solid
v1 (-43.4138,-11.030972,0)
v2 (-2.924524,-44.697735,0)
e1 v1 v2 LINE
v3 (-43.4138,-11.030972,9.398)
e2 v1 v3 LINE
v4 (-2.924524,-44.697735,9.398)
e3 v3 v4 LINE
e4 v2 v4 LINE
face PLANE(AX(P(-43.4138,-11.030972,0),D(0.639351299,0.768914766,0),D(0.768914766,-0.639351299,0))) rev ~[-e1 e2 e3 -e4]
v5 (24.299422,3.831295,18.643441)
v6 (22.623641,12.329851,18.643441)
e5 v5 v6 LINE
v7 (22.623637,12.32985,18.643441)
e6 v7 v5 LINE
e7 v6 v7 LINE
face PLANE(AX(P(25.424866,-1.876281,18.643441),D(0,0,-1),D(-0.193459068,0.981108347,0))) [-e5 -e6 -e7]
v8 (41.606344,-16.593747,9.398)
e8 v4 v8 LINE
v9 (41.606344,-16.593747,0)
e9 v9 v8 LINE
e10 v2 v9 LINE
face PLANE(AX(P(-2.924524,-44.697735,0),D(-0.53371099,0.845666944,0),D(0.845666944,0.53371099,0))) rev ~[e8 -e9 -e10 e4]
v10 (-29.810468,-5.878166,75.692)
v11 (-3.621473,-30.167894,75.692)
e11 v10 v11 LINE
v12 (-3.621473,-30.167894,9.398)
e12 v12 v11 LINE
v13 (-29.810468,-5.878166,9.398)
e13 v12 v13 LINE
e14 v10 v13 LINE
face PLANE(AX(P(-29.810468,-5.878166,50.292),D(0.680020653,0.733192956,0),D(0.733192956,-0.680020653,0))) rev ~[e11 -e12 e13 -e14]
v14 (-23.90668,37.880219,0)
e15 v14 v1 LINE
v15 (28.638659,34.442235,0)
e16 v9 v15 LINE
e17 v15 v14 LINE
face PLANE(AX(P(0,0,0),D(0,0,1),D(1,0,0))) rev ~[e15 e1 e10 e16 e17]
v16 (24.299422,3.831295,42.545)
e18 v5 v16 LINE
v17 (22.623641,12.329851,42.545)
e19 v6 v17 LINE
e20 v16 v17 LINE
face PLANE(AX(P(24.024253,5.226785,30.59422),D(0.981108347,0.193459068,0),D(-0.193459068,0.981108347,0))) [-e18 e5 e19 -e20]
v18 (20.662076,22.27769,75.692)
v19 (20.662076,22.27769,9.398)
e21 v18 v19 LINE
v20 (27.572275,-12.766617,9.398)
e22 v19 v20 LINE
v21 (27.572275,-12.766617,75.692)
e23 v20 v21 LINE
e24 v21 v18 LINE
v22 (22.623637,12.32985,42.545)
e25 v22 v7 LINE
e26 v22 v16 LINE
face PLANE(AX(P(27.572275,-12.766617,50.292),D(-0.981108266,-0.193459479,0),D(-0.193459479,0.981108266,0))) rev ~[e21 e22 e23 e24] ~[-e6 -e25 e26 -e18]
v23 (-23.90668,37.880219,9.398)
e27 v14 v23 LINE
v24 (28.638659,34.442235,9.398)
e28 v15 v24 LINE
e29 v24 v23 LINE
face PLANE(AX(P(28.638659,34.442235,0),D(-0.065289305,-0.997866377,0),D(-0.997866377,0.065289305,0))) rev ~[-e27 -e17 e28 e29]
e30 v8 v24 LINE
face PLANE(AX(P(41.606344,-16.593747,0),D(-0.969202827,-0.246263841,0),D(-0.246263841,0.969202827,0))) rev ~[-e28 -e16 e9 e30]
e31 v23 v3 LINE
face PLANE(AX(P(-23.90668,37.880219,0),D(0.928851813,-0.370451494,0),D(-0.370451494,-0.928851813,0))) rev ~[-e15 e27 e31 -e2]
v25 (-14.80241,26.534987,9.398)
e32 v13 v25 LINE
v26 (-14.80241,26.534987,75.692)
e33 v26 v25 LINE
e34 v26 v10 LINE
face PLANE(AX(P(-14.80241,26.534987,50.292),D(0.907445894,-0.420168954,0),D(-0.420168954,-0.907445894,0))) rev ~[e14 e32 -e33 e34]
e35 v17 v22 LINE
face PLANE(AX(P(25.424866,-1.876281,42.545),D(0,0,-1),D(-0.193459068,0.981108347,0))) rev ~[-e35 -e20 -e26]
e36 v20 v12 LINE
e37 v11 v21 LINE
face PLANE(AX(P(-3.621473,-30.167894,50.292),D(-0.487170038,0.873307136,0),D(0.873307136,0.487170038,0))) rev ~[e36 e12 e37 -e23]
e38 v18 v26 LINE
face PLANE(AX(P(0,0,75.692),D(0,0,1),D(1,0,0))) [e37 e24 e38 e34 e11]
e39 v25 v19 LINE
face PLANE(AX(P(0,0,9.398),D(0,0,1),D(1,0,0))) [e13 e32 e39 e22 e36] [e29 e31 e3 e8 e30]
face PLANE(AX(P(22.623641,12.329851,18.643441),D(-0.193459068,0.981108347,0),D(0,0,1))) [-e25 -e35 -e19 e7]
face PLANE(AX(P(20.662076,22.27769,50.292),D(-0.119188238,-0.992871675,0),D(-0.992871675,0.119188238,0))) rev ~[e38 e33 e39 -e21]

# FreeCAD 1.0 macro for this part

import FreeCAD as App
import Part
import Sketcher
from FreeCAD import Vector
Q = App.Units.Quantity

doc = App.newDocument("Part")
params = doc.addObject("Spreadsheet::Sheet", "Params")
for row, (alias, value) in enumerate([
    ("pad1_length", "0.37 in"),
    ("pad2_length", "1.98 in"),
    ("pad3_length", "1 in"),
    ("pad4_length", "0.35 in"),
], start=1):
    params.set(f"A{row}", alias)
    params.set(f"B{row}", "=" + value)
    params.setAlias(f"B{row}", alias)

body = doc.addObject("PartDesign::Body", "Body")

# Sketch on XY plane
sketch1 = body.newObject("Sketcher::SketchObject", "Sketch")
sketch1.AttachmentSupport = (doc.getObject("XY_Plane"), [""])
sketch1.MapMode = "FlatFace"
sketch1.addGeometry(Part.LineSegment(Vector(-2.924524, -44.697735, 0), Vector(41.606344, -16.593747, 0)), False)
sketch1.addGeometry(Part.LineSegment(Vector(41.606344, -16.593747, 0), Vector(28.638659, 34.442235, 0)), False)
sketch1.addGeometry(Part.LineSegment(Vector(28.638659, 34.442235, 0), Vector(-23.90668, 37.880219, 0)), False)
sketch1.addGeometry(Part.LineSegment(Vector(-23.90668, 37.880219, 0), Vector(-43.4138, -11.030972, 0)), False)
sketch1.addGeometry(Part.LineSegment(Vector(-43.4138, -11.030972, 0), Vector(-2.924524, -44.697735, 0)), False)
sketch1.addConstraint(Sketcher.Constraint("Coincident", 0, 2, 1, 1))
sketch1.addConstraint(Sketcher.Constraint("Coincident", 1, 2, 2, 1))
sketch1.addConstraint(Sketcher.Constraint("Coincident", 2, 2, 3, 1))
sketch1.addConstraint(Sketcher.Constraint("Coincident", 3, 2, 4, 1))
sketch1.addConstraint(Sketcher.Constraint("Coincident", 4, 2, 0, 1))
sketch1.addConstraint(Sketcher.Constraint("Equal", 0, 1))
sketch1.addConstraint(Sketcher.Constraint("Equal", 1, 2))
sketch1.addConstraint(Sketcher.Constraint("Equal", 2, 3))
sketch1.addConstraint(Sketcher.Constraint("Equal", 3, 4))
sketch1.addConstraint(Sketcher.Constraint("DistanceX", 3, 2, -1, 1, 43.4138))
sketch1.addConstraint(Sketcher.Constraint("Distance", 0, 52.65769))
sketch1.addConstraint(Sketcher.Constraint("DistanceX", -1, 1, 1, 2, 28.638659))
sketch1.addConstraint(Sketcher.Constraint("DistanceX", 2, 2, -1, 1, 23.90668))
sketch1.addConstraint(Sketcher.Constraint("DistanceY", -1, 1, 2, 2, 37.880219))
sketch1.addConstraint(Sketcher.Constraint("DistanceY", 0, 2, 1, 2, 51.035982))
pad1 = body.newObject("PartDesign::Pad", "Pad")
pad1.Profile = sketch1
pad1.setExpression("Length", "Params.pad1_length")

# Sketch on XY plane
sketch2 = body.newObject("Sketcher::SketchObject", "Sketch001")
sketch2.AttachmentSupport = (doc.getObject("XY_Plane"), [""])
sketch2.MapMode = "FlatFace"
sketch2.addGeometry(Part.LineSegment(Vector(-3.621473, -30.167894, 0), Vector(27.572275, -12.766617, 0)), False)
sketch2.addGeometry(Part.LineSegment(Vector(27.572275, -12.766617, 0), Vector(20.662076, 22.27769, 0)), False)
sketch2.addGeometry(Part.LineSegment(Vector(20.662076, 22.27769, 0), Vector(-14.80241, 26.534987, 0)), False)
sketch2.addGeometry(Part.LineSegment(Vector(-14.80241, 26.534987, 0), Vector(-29.810468, -5.878166, 0)), False)
sketch2.addGeometry(Part.LineSegment(Vector(-29.810468, -5.878166, 0), Vector(-3.621473, -30.167894, 0)), False)
sketch2.addConstraint(Sketcher.Constraint("Coincident", 0, 2, 1, 1))
sketch2.addConstraint(Sketcher.Constraint("Coincident", 1, 2, 2, 1))
sketch2.addConstraint(Sketcher.Constraint("Coincident", 2, 2, 3, 1))
sketch2.addConstraint(Sketcher.Constraint("Coincident", 3, 2, 4, 1))
sketch2.addConstraint(Sketcher.Constraint("Coincident", 4, 2, 0, 1))
sketch2.addConstraint(Sketcher.Constraint("Equal", 0, 1))
sketch2.addConstraint(Sketcher.Constraint("Equal", 1, 2))
sketch2.addConstraint(Sketcher.Constraint("Equal", 2, 3))
sketch2.addConstraint(Sketcher.Constraint("Equal", 3, 4))
sketch2.addConstraint(Sketcher.Constraint("DistanceX", 1, 2, 0, 2, 6.910199))
sketch2.addConstraint(Sketcher.Constraint("DistanceY", -1, 1, 1, 2, 22.27769))
sketch2.addConstraint(Sketcher.Constraint("DistanceX", 2, 2, -1, 1, 14.80241))
sketch2.addConstraint(Sketcher.Constraint("DistanceX", 3, 2, -1, 1, 29.810468))
sketch2.addConstraint(Sketcher.Constraint("DistanceY", 0, 2, 3, 2, 6.888451))
sketch2.addConstraint(Sketcher.Constraint("DistanceY", 4, 2, 3, 2, 24.289728))
pad2 = body.newObject("PartDesign::Pad", "Pad001")
pad2.Profile = sketch2
pad2.setExpression("Length", "Params.pad2_length")

# Sketch on XY plane
sketch3 = body.newObject("Sketcher::SketchObject", "Sketch002")
sketch3.AttachmentSupport = (doc.getObject("XY_Plane"), [""])
sketch3.MapMode = "FlatFace"
sketch3.AttachmentOffset = App.Placement(Vector(0, 0, 1.98 * 25.4), App.Rotation())
sketch3.addGeometry(Part.LineSegment(Vector(-29.810468, -5.878166, 0), Vector(-3.621473, -30.167894, 0)), False)
sketch3.addGeometry(Part.LineSegment(Vector(-3.621473, -30.167894, 0), Vector(27.572275, -12.766617, 0)), False)
sketch3.addGeometry(Part.LineSegment(Vector(27.572275, -12.766617, 0), Vector(20.662076, 22.27769, 0)), False)
sketch3.addGeometry(Part.LineSegment(Vector(20.662076, 22.27769, 0), Vector(-14.80241, 26.534987, 0)), False)
sketch3.addGeometry(Part.LineSegment(Vector(-14.80241, 26.534987, 0), Vector(-29.810468, -5.878166, 0)), False)
sketch3.addConstraint(Sketcher.Constraint("Coincident", 0, 2, 1, 1))
sketch3.addConstraint(Sketcher.Constraint("Coincident", 1, 2, 2, 1))
sketch3.addConstraint(Sketcher.Constraint("Coincident", 2, 2, 3, 1))
sketch3.addConstraint(Sketcher.Constraint("Coincident", 3, 2, 4, 1))
sketch3.addConstraint(Sketcher.Constraint("Coincident", 4, 2, 0, 1))
sketch3.addConstraint(Sketcher.Constraint("Equal", 0, 1))
sketch3.addConstraint(Sketcher.Constraint("Equal", 1, 2))
sketch3.addConstraint(Sketcher.Constraint("Equal", 2, 3))
sketch3.addConstraint(Sketcher.Constraint("Equal", 3, 4))
sketch3.addConstraint(Sketcher.Constraint("DistanceX", 2, 2, 1, 2, 6.910199))
sketch3.addConstraint(Sketcher.Constraint("DistanceY", -1, 1, 2, 2, 22.27769))
sketch3.addConstraint(Sketcher.Constraint("DistanceX", 3, 2, -1, 1, 14.80241))
sketch3.addConstraint(Sketcher.Constraint("DistanceX", 4, 2, -1, 1, 29.810468))
sketch3.addConstraint(Sketcher.Constraint("DistanceX", 0, 2, 2, 2, 24.283549))
sketch3.addConstraint(Sketcher.Constraint("DistanceY", 0, 2, 3, 2, 56.702881))
pad3 = body.newObject("PartDesign::Pad", "Pad002")
pad3.Profile = sketch3
pad3.setExpression("Length", "Params.pad3_length")

# Sketch on an angled plane
sketch4 = body.newObject("Sketcher::SketchObject", "Sketch003")
sketch4.Placement = App.Placement(Vector(24.117176, 4.755536, 0), App.Rotation(Vector(-0.193459068, 0.981108347, 0), Vector(0, 0, 1), Vector(0.981108347, 0.193459068, 0), "ZXY"))
sketch4.addGeometry(Part.LineSegment(Vector(-6.759515, 42.544999, 0), Vector(-6.759515, 18.64344, 0)), False)
sketch4.addGeometry(Part.LineSegment(Vector(-6.759515, 18.64344, 0), Vector(7.720161, 18.64344, 0)), False)
sketch4.addGeometry(Part.LineSegment(Vector(7.720161, 18.64344, 0), Vector(7.720161, 42.544999, 0)), False)
sketch4.addGeometry(Part.LineSegment(Vector(7.720161, 42.544999, 0), Vector(-6.759515, 42.544999, 0)), False)
sketch4.addConstraint(Sketcher.Constraint("Coincident", 0, 2, 1, 1))
sketch4.addConstraint(Sketcher.Constraint("Coincident", 1, 2, 2, 1))
sketch4.addConstraint(Sketcher.Constraint("Coincident", 2, 2, 3, 1))
sketch4.addConstraint(Sketcher.Constraint("Coincident", 3, 2, 0, 1))
sketch4.addConstraint(Sketcher.Constraint("Vertical", 0))
sketch4.addConstraint(Sketcher.Constraint("Horizontal", 1))
sketch4.addConstraint(Sketcher.Constraint("Vertical", 2))
sketch4.addConstraint(Sketcher.Constraint("Horizontal", 3))
sketch4.addConstraint(Sketcher.Constraint("DistanceY", -1, 1, 2, 2, Q("1.675 in")))
sketch4.addConstraint(Sketcher.Constraint("DistanceY", 0, 2, 0, 1, 23.901559))
sketch4.addConstraint(Sketcher.Constraint("DistanceX", 1, 1, 1, 2, 14.479677))
sketch4.addConstraint(Sketcher.Constraint("DistanceX", -1, 1, 1, 2, 7.720161))
pad4 = body.newObject("PartDesign::Pad", "Pad003")
pad4.Profile = sketch4
pad4.setExpression("Length", "Params.pad4_length")
pad4.Reversed = True

doc.recompute()
